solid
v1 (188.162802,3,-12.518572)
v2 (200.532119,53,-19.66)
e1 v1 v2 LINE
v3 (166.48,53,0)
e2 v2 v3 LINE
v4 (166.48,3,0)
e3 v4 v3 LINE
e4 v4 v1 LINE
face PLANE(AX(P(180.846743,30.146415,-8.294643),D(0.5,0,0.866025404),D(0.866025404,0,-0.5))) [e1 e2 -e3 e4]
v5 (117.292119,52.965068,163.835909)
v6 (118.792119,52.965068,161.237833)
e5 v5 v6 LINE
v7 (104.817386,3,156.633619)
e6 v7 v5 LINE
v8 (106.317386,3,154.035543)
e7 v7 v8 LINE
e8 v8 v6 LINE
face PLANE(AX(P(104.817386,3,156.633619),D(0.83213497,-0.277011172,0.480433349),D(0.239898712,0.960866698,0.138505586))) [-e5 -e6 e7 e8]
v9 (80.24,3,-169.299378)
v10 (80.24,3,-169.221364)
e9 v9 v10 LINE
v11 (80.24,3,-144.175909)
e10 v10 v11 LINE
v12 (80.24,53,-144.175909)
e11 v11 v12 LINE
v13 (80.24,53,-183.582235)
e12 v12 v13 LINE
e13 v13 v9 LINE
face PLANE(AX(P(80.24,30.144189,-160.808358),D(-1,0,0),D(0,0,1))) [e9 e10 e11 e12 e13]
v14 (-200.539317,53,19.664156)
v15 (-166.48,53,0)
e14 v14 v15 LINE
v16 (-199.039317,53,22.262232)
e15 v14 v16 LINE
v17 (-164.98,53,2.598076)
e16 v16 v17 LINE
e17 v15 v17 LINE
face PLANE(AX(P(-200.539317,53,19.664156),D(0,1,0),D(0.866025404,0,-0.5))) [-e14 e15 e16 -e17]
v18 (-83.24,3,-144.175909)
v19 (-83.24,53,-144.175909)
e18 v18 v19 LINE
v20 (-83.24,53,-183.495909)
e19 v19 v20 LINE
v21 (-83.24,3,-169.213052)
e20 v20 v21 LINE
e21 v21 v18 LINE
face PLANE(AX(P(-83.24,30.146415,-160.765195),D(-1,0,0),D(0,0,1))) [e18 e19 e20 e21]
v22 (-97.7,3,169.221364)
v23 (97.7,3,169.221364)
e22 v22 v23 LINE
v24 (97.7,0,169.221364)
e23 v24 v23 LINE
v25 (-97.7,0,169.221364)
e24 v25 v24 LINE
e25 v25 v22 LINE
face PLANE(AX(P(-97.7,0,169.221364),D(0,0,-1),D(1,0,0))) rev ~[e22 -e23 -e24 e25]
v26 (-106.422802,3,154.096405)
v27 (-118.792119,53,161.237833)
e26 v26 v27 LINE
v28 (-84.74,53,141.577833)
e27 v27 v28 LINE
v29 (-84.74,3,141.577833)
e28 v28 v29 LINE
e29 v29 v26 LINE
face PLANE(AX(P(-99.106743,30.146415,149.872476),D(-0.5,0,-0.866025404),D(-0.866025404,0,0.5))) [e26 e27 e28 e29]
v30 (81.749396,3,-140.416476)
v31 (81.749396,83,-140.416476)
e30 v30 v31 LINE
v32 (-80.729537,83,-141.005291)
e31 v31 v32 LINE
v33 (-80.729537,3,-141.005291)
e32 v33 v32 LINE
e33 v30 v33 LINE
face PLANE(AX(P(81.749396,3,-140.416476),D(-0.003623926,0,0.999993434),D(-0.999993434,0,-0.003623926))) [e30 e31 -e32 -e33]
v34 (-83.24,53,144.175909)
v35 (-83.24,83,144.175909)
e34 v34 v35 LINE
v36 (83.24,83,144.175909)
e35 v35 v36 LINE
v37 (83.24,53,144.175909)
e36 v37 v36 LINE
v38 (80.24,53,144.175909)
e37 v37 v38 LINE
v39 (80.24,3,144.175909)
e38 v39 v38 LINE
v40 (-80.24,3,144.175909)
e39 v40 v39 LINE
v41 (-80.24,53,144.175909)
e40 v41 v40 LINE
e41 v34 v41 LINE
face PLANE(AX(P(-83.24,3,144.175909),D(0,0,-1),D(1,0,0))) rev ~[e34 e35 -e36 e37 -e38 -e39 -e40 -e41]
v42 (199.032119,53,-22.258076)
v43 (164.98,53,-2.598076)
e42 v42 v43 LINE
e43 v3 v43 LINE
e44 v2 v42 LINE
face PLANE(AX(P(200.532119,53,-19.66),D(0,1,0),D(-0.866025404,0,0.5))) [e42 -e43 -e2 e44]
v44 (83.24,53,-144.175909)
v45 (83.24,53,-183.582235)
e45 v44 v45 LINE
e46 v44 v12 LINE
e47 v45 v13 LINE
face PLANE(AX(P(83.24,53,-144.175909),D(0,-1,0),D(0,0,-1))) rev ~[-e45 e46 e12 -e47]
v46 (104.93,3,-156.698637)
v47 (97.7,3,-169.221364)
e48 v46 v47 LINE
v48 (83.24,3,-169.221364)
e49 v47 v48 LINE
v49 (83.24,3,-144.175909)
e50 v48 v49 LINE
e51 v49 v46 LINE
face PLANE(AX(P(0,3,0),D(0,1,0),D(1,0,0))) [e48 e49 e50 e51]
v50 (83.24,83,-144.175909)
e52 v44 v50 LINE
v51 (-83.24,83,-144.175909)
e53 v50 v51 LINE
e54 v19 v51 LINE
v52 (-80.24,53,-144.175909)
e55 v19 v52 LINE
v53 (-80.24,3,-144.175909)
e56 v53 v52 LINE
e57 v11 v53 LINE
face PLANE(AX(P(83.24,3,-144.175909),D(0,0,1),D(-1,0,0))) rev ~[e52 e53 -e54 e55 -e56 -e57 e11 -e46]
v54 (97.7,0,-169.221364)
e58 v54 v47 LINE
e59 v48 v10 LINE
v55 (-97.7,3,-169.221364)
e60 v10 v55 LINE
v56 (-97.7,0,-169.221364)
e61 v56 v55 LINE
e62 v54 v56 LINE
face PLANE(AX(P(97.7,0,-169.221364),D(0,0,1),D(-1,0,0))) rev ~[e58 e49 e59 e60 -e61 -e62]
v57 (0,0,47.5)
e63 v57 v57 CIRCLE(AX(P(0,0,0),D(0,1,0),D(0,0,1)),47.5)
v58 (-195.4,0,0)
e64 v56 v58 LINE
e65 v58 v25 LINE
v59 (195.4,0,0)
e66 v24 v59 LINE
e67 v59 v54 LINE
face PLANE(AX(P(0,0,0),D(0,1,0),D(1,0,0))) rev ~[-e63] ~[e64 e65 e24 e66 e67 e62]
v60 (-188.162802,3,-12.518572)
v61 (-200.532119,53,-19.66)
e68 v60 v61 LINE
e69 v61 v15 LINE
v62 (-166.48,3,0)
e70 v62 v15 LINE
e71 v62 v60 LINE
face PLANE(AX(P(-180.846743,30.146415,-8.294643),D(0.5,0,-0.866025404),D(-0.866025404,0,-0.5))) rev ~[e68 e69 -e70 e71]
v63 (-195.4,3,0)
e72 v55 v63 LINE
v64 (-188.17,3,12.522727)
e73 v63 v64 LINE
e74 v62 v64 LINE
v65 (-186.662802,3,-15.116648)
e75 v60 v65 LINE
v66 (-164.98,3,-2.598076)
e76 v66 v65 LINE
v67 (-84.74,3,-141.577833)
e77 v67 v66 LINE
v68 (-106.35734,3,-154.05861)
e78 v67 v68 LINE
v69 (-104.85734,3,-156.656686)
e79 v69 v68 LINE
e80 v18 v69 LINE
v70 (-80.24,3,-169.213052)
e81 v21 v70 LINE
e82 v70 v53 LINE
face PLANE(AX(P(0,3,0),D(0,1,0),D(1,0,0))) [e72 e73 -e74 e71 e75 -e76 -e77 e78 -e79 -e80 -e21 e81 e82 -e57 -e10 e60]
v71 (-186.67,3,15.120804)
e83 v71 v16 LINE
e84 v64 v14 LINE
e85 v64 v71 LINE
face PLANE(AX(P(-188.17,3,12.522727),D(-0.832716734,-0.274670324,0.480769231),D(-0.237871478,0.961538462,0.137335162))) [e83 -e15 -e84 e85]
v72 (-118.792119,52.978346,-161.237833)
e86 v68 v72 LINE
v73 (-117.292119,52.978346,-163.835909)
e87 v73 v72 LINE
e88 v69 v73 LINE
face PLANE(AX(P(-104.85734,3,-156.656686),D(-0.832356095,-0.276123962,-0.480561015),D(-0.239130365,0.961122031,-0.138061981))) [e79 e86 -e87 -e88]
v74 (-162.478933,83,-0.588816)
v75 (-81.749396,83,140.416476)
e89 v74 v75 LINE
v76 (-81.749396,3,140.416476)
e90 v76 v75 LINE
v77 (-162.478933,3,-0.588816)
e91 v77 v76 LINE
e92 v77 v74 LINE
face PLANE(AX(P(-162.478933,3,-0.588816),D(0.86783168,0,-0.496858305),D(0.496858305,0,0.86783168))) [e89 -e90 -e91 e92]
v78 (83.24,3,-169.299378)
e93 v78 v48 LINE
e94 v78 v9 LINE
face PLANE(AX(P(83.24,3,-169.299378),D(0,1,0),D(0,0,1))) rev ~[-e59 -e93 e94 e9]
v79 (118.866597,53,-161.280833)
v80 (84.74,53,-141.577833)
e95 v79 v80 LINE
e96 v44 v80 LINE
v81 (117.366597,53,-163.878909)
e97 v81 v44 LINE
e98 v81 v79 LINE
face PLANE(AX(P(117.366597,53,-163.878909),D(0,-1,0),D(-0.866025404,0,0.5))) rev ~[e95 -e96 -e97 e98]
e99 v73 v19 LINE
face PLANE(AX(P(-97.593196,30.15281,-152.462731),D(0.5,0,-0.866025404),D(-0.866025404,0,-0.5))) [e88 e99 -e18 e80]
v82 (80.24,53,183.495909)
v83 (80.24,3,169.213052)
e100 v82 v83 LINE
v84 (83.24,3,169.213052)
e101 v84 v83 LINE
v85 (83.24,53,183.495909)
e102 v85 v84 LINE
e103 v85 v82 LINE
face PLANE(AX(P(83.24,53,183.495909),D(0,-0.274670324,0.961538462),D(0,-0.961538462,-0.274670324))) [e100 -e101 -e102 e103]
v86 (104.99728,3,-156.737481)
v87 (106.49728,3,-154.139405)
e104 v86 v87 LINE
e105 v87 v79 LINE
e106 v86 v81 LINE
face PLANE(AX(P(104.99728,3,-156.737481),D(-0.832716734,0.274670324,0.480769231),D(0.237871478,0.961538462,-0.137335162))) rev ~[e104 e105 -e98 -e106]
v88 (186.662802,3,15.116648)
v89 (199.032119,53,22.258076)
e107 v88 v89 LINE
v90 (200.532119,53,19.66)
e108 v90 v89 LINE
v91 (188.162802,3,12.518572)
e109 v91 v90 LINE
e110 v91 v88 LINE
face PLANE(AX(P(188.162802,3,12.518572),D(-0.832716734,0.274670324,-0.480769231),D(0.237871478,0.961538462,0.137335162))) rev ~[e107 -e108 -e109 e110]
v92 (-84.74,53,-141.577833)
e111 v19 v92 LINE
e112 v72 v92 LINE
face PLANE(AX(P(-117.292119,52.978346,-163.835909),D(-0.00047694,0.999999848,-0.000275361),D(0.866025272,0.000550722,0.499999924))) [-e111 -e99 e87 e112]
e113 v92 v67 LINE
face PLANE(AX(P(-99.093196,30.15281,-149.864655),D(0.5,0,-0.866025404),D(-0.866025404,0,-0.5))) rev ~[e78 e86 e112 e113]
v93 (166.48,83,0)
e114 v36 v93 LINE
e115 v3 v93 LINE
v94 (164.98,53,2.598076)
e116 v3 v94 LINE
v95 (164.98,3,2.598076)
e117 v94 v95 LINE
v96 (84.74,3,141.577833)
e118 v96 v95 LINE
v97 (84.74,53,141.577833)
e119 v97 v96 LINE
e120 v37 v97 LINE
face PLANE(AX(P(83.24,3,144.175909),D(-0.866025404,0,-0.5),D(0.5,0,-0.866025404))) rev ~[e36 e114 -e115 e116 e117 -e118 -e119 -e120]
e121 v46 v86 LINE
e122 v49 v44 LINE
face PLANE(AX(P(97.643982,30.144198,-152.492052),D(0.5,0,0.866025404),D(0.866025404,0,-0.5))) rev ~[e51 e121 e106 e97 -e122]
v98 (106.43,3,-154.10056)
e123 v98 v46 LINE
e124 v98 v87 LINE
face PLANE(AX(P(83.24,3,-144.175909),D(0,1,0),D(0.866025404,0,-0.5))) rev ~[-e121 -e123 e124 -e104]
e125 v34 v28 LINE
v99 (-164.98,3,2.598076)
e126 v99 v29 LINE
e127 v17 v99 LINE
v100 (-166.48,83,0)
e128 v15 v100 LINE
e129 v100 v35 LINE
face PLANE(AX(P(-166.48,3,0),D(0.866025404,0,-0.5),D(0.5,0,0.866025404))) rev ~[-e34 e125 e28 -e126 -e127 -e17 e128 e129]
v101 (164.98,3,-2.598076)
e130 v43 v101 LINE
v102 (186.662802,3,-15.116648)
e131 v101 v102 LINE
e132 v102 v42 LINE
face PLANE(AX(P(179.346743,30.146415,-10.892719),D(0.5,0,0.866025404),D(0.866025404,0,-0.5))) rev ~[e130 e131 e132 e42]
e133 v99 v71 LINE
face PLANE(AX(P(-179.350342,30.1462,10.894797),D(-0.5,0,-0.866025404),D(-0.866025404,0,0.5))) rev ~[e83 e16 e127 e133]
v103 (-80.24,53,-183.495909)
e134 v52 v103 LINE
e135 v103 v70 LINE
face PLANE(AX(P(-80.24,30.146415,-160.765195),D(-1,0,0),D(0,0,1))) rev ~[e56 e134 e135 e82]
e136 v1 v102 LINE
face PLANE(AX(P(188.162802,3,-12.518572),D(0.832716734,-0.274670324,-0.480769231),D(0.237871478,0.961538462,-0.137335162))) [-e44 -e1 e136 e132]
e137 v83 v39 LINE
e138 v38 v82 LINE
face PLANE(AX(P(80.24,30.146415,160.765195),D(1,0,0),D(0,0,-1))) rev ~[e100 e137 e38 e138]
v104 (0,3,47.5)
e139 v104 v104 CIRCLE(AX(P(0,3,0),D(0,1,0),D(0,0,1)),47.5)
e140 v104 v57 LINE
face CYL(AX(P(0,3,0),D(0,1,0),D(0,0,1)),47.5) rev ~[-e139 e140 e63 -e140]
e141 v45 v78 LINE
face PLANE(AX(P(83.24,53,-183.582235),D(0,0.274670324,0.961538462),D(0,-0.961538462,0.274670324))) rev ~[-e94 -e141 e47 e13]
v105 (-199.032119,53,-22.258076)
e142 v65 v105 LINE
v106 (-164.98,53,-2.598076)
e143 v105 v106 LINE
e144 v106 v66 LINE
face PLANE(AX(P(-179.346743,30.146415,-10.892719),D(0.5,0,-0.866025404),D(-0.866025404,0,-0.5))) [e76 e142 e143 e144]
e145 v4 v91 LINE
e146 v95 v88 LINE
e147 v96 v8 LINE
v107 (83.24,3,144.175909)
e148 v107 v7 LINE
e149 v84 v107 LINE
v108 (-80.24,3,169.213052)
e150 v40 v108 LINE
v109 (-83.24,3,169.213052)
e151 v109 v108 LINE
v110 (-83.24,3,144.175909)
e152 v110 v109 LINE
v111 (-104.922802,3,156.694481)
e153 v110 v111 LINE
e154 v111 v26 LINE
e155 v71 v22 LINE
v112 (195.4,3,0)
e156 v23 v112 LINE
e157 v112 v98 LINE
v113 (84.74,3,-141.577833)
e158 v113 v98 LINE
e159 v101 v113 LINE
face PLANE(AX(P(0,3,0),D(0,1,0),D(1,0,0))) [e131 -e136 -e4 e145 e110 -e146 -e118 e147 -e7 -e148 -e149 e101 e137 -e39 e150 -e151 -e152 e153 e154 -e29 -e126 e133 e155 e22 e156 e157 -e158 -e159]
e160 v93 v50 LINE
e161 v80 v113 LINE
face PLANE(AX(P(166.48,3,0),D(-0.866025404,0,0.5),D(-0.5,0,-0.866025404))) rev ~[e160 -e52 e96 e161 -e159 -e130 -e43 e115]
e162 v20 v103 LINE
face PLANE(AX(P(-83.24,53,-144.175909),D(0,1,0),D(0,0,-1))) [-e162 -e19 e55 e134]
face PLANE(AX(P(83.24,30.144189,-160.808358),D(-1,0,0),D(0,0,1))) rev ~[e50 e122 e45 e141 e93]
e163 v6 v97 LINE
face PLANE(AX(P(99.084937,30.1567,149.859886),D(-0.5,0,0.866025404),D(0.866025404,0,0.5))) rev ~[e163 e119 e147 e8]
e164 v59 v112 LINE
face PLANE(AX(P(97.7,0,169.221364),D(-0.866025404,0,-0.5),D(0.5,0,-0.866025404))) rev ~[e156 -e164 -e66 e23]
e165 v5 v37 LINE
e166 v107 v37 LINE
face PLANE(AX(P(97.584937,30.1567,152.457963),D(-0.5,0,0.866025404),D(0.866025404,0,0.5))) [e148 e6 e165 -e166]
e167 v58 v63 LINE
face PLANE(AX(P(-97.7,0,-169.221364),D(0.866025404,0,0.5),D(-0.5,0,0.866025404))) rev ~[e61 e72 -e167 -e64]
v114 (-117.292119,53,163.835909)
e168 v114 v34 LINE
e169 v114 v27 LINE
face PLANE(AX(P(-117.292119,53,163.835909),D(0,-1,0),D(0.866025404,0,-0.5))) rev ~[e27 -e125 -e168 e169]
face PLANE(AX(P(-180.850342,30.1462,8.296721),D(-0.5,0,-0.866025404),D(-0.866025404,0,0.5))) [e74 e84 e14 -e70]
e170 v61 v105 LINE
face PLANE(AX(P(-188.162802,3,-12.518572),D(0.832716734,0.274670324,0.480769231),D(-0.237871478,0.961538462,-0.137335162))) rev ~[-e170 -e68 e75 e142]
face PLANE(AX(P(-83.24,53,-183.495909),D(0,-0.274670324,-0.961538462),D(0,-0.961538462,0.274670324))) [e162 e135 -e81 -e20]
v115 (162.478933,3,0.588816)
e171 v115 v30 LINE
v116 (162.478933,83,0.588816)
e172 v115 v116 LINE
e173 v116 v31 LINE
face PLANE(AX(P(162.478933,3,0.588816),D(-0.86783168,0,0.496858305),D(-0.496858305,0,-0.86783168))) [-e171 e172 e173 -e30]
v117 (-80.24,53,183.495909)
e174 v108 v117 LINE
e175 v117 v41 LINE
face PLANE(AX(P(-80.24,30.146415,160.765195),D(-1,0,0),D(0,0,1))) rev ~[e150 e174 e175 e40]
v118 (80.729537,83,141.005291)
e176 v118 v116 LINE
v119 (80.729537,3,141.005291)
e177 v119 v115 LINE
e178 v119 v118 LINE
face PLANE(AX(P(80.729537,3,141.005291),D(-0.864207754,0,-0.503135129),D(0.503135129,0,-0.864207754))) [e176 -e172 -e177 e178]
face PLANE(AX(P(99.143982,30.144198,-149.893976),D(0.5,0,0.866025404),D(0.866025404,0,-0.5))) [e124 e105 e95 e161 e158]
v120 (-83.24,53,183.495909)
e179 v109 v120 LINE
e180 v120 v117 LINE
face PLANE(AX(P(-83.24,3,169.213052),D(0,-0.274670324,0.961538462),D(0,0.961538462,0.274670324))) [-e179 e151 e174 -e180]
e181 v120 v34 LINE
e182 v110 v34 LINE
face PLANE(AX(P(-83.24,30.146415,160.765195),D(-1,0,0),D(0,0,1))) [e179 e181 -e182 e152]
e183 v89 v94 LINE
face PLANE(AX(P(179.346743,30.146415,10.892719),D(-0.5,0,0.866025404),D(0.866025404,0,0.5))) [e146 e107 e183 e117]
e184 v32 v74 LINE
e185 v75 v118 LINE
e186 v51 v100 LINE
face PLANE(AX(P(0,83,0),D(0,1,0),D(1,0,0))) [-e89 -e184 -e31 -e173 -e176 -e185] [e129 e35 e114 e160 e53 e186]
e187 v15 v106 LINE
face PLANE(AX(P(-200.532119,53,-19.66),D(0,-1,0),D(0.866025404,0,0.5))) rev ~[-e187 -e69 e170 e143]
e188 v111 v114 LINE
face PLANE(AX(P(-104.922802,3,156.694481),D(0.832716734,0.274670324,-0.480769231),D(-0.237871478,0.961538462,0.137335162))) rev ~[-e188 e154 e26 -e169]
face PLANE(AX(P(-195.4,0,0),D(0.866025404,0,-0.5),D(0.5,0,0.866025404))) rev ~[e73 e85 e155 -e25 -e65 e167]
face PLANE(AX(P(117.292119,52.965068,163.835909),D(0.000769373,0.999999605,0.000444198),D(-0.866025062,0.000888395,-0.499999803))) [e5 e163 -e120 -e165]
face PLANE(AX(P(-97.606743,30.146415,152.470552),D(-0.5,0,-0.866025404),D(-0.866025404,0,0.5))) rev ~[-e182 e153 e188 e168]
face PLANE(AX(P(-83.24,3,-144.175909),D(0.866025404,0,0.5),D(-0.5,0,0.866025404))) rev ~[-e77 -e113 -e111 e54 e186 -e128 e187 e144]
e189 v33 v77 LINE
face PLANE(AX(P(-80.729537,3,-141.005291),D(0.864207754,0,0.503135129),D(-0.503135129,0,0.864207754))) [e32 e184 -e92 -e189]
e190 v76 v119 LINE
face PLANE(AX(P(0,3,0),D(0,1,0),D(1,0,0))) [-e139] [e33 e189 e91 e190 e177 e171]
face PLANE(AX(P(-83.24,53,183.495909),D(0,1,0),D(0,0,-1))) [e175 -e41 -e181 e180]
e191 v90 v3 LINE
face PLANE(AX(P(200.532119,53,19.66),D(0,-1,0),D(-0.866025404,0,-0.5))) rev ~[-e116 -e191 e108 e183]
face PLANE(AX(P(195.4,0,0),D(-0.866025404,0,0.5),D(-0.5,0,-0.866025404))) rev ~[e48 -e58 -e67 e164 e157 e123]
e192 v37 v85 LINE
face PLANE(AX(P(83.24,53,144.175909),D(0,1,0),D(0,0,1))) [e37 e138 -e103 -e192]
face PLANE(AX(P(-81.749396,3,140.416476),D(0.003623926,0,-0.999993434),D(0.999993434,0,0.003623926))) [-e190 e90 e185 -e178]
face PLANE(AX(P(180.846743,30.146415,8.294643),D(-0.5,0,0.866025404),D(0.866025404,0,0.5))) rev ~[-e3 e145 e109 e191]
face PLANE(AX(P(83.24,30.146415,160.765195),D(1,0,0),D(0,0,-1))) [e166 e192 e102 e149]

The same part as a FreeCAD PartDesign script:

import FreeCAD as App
import Part
import Sketcher
from FreeCAD import Vector
Q = App.Units.Quantity

doc = App.newDocument("Part")
body = doc.addObject("PartDesign::Body", "Body")

# Sketch on XZ plane
sketch1 = body.newObject("Sketcher::SketchObject", "Sketch")
sketch1.AttachmentSupport = (doc.getObject("XZ_Plane"), [""])
sketch1.MapMode = "FlatFace"
sketch1.addGeometry([
    Part.LineSegment(Vector(195, 0, 0), Vector(98, -169, 0)),  # 0
    Part.LineSegment(Vector(98, -169, 0), Vector(-98, -169, 0)),  # 1
    Part.LineSegment(Vector(-98, -169, 0), Vector(-195, 0, 0)),  # 2
    Part.LineSegment(Vector(-195, 0, 0), Vector(-98, 169, 0)),  # 3
    Part.LineSegment(Vector(-98, 169, 0), Vector(98, 169, 0)),  # 4
    Part.LineSegment(Vector(98, 169, 0), Vector(195, 0, 0)),  # 5
], False)
sketch1.addConstraint([
    Sketcher.Constraint("Coincident", 0, 2, 1, 1),
    Sketcher.Constraint("Coincident", 1, 2, 2, 1),
    Sketcher.Constraint("Coincident", 2, 2, 3, 1),
    Sketcher.Constraint("Coincident", 3, 2, 4, 1),
    Sketcher.Constraint("Coincident", 4, 2, 5, 1),
    Sketcher.Constraint("Coincident", 5, 2, 0, 1),
    Sketcher.Constraint("Horizontal", 1),
    Sketcher.Constraint("Horizontal", 4),
    Sketcher.Constraint("Symmetric", 0, 2, 3, 2, -1, 1),
    Sketcher.Constraint("Symmetric", 2, 2, 5, 2, -1, 1),
    Sketcher.Constraint("PointOnObject", 2, 2, -1),
    Sketcher.Constraint("Parallel", 2, 5),
    Sketcher.Constraint("Vertical", 1, 2, 3, 2),
    Sketcher.Constraint("Angle", 0, Q("-120 deg")),
    Sketcher.Constraint("DistanceX", 1, 2, 1, 1, Q("195.4 mm")),
    Sketcher.Constraint("Distance", 0, Q("195.4 mm")),
])
pad1 = body.newObject("PartDesign::Pad", "Pad")
pad1.Profile = sketch1
pad1.Length = 3
pad1.Reversed = True

# Sketch on XZ plane
sketch2 = body.newObject("Sketcher::SketchObject", "Sketch001")
sketch2.AttachmentSupport = (doc.getObject("XZ_Plane"), [""])
sketch2.MapMode = "FlatFace"
sketch2.AttachmentOffset = App.Placement(Vector(0, 0, -3), App.Rotation())
sketch2.addGeometry(Part.Circle(Vector(0, 0, 0), Vector(0, 0, 1), 48), False)
sketch2.addConstraint([
    Sketcher.Constraint("Coincident", 0, 3, -1, 1),
    Sketcher.Constraint("Diameter", 0, Q("95 mm")),
])
pocket1 = body.newObject("PartDesign::Pocket", "Pocket")
pocket1.Profile = sketch2
pocket1.Length = 3
pocket1.Reversed = True

# Sketch on XZ plane
sketch3 = body.newObject("Sketcher::SketchObject", "Sketch002")
sketch3.AttachmentSupport = (doc.getObject("XZ_Plane"), [""])
sketch3.MapMode = "FlatFace"
sketch3.AttachmentOffset = App.Placement(Vector(0, 0, -3), App.Rotation())
sketch3.addGeometry([
    Part.LineSegment(Vector(83, -144, 0), Vector(-83, -144, 0)),  # 0
    Part.LineSegment(Vector(-83, -144, 0), Vector(-166, 0, 0)),  # 1
    Part.LineSegment(Vector(-166, 0, 0), Vector(-83, 144, 0)),  # 2
    Part.LineSegment(Vector(-83, 144, 0), Vector(83, 144, 0)),  # 3
    Part.LineSegment(Vector(83, 144, 0), Vector(166, 0, 0)),  # 4
    Part.LineSegment(Vector(166, 0, 0), Vector(83, -144, 0)),  # 5
    Part.LineSegment(Vector(-162, -1, 0), Vector(-81, -141, 0)),  # 6
    Part.LineSegment(Vector(-81, -141, 0), Vector(82, -140, 0)),  # 7
    Part.LineSegment(Vector(82, -140, 0), Vector(162, 1, 0)),  # 8
    Part.LineSegment(Vector(162, 1, 0), Vector(81, 141, 0)),  # 9
    Part.LineSegment(Vector(81, 141, 0), Vector(-82, 140, 0)),  # 10
    Part.LineSegment(Vector(-82, 140, 0), Vector(-162, -1, 0)),  # 11
], False)
sketch3.addConstraint([
    Sketcher.Constraint("Coincident", 0, 2, 1, 1),
    Sketcher.Constraint("Coincident", 1, 2, 2, 1),
    Sketcher.Constraint("Coincident", 2, 2, 3, 1),
    Sketcher.Constraint("Coincident", 3, 2, 4, 1),
    Sketcher.Constraint("Coincident", 4, 2, 5, 1),
    Sketcher.Constraint("Coincident", 5, 2, 0, 1),
    Sketcher.Constraint("Coincident", 6, 2, 7, 1),
    Sketcher.Constraint("Coincident", 7, 2, 8, 1),
    Sketcher.Constraint("Coincident", 8, 2, 9, 1),
    Sketcher.Constraint("Coincident", 9, 2, 10, 1),
    Sketcher.Constraint("Coincident", 10, 2, 11, 1),
    Sketcher.Constraint("Coincident", 11, 2, 6, 1),
    Sketcher.Constraint("Horizontal", 0),
    Sketcher.Constraint("Horizontal", 3),
    Sketcher.Constraint("Symmetric", 0, 2, 3, 2, -1, 1),
    Sketcher.Constraint("Symmetric", 1, 2, 4, 2, -1, 1),
    Sketcher.Constraint("Symmetric", 6, 2, 9, 2, -1, 1),
    Sketcher.Constraint("Symmetric", 7, 2, 10, 2, -1, 1),
    Sketcher.Constraint("Symmetric", 8, 2, 11, 2, -1, 1),
    Sketcher.Constraint("PointOnObject", 1, 2, -1),
    Sketcher.Constraint("Parallel", 2, 5),
    Sketcher.Constraint("Vertical", 0, 2, 2, 2),
    Sketcher.Constraint("Equal", 6, 7),
    Sketcher.Constraint("Equal", 7, 8),
    Sketcher.Constraint("Angle", 1, Q("120 deg")),
    Sketcher.Constraint("DistanceX", 0, 2, 0, 1, Q("166.48 mm")),
    Sketcher.Constraint("Distance", 1, Q("166.48 mm")),
    Sketcher.Constraint("Distance", 6, Q("162.48 mm")),
    Sketcher.Constraint("DistanceY", 6, 2, 2, 2, Q("285.181201 mm")),
    Sketcher.Constraint("DistanceY", 7, 2, 8, 2, Q("141.005291 mm")),
    Sketcher.Constraint("DistanceX", 9, 2, 7, 2, Q("1.019858 mm")),
])
pad2 = body.newObject("PartDesign::Pad", "Pad001")
pad2.Profile = sketch3
pad2.Length = 80
pad2.Reversed = True

# Sketch on YZ plane
sketch4 = body.newObject("Sketcher::SketchObject", "Sketch003")
sketch4.AttachmentSupport = (doc.getObject("YZ_Plane"), [""])
sketch4.MapMode = "FlatFace"
sketch4.AttachmentOffset = App.Placement(Vector(0, 0, 83.24), App.Rotation())
sketch4.addGeometry([
    Part.LineSegment(Vector(53, -144, 0), Vector(3, -144, 0)),
    Part.LineSegment(Vector(3, -144, 0), Vector(3, -169, 0)),
    Part.LineSegment(Vector(3, -169, 0), Vector(53, -184, 0)),
    Part.LineSegment(Vector(53, -184, 0), Vector(53, -144, 0)),
], False)
sketch4.addConstraint([
    Sketcher.Constraint("Coincident", 0, 2, 1, 1),
    Sketcher.Constraint("Coincident", 1, 2, 2, 1),
    Sketcher.Constraint("Coincident", 2, 2, 3, 1),
    Sketcher.Constraint("Coincident", 3, 2, 0, 1),
    Sketcher.Constraint("Horizontal", 0),
    Sketcher.Constraint("Vertical", 1),
    Sketcher.Constraint("Vertical", 3),
    Sketcher.Constraint("DistanceX", 0, 2, 0, 1, Q("50 mm")),
    Sketcher.Constraint("Distance", 2, Q("52 mm")),
    Sketcher.Constraint("DistanceX", -1, 1, 0, 2, Q("3 mm")),
    Sketcher.Constraint("DistanceY", 1, 2, 1, 1, Q("25.123469 mm")),
    Sketcher.Constraint("DistanceY", 0, 2, -1, 1, Q("144.175909 mm")),
])
pad3 = body.newObject("PartDesign::Pad", "Pad002")
pad3.Profile = sketch4
pad3.Length = 3
pad3.Reversed = True

# Sketch on an angled plane
sketch5 = body.newObject("Sketcher::SketchObject", "Sketch004")
sketch5.Placement = App.Placement(Vector(-41.62, 0, -72.087955), App.Rotation(Vector(-0.866025404, 0, 0.5), Vector(0, 1, 0), Vector(-0.5, 0, -0.866025404), "ZXY"))
sketch5.addGeometry([
    Part.LineSegment(Vector(-144, 3, 0), Vector(-144, 53, 0)),
    Part.LineSegment(Vector(-144, 53, 0), Vector(-184, 53, 0)),
    Part.LineSegment(Vector(-184, 53, 0), Vector(-169, 3, 0)),
    Part.LineSegment(Vector(-169, 3, 0), Vector(-144, 3, 0)),
], False)
sketch5.addConstraint([
    Sketcher.Constraint("Coincident", 0, 2, 1, 1),
    Sketcher.Constraint("Coincident", 1, 2, 2, 1),
    Sketcher.Constraint("Coincident", 2, 2, 3, 1),
    Sketcher.Constraint("Coincident", 3, 2, 0, 1),
    Sketcher.Constraint("Vertical", 0),
    Sketcher.Constraint("Horizontal", 1),
    Sketcher.Constraint("Horizontal", 3),
    Sketcher.Constraint("DistanceY", 0, 1, 0, 2, Q("50 mm")),
    Sketcher.Constraint("Distance", 2, Q("52 mm")),
    Sketcher.Constraint("DistanceY", -1, 1, 0, 2, Q("53 mm")),
    Sketcher.Constraint("DistanceX", 1, 2, 1, 1, Q("39.406 mm")),
    Sketcher.Constraint("DistanceX", 0, 2, -1, 1, Q("144.175909 mm")),
])
pad4 = body.newObject("PartDesign::Pad", "Pad003")
pad4.Profile = sketch5
pad4.Length = 3
pad4.Reversed = True

# Sketch on an angled plane
sketch6 = body.newObject("Sketcher::SketchObject", "Sketch005")
sketch6.Placement = App.Placement(Vector(-41.62, 0, -72.087955), App.Rotation(Vector(-0.866025404, 0, 0.5), Vector(0, 1, 0), Vector(-0.5, 0, -0.866025404), "ZXY"))
sketch6.addGeometry([
    Part.LineSegment(Vector(144, 3, 0), Vector(169, 3, 0)),
    Part.LineSegment(Vector(169, 3, 0), Vector(184, 53, 0)),
    Part.LineSegment(Vector(184, 53, 0), Vector(144, 53, 0)),
    Part.LineSegment(Vector(144, 53, 0), Vector(144, 3, 0)),
], False)
sketch6.addConstraint([
    Sketcher.Constraint("Coincident", 0, 2, 1, 1),
    Sketcher.Constraint("Coincident", 1, 2, 2, 1),
    Sketcher.Constraint("Coincident", 2, 2, 3, 1),
    Sketcher.Constraint("Coincident", 3, 2, 0, 1),
    Sketcher.Constraint("Horizontal", 0),
    Sketcher.Constraint("Horizontal", 2),
    Sketcher.Constraint("Vertical", 3),
    Sketcher.Constraint("DistanceY", 3, 2, 3, 1, Q("50 mm")),
    Sketcher.Constraint("Distance", 1, Q("52 mm")),
    Sketcher.Constraint("DistanceY", -1, 1, 0, 2, Q("3 mm")),
    Sketcher.Constraint("DistanceX", 2, 2, 2, 1, Q("39.328312 mm")),
    Sketcher.Constraint("DistanceX", -1, 1, 1, 2, Q("183.504221 mm")),
])
pad5 = body.newObject("PartDesign::Pad", "Pad004")
pad5.Profile = sketch6
pad5.Length = 3
pad5.Reversed = True

# Sketch on YZ plane
sketch7 = body.newObject("Sketcher::SketchObject", "Sketch006")
sketch7.AttachmentSupport = (doc.getObject("YZ_Plane"), [""])
sketch7.MapMode = "FlatFace"
sketch7.AttachmentOffset = App.Placement(Vector(0, 0, 83.24), App.Rotation())
sketch7.addGeometry([
    Part.LineSegment(Vector(3, 144, 0), Vector(53, 144, 0)),
    Part.LineSegment(Vector(53, 144, 0), Vector(53, 183, 0)),
    Part.LineSegment(Vector(53, 183, 0), Vector(3, 169, 0)),
    Part.LineSegment(Vector(3, 169, 0), Vector(3, 144, 0)),
], False)
sketch7.addConstraint([
    Sketcher.Constraint("Coincident", 0, 2, 1, 1),
    Sketcher.Constraint("Coincident", 1, 2, 2, 1),
    Sketcher.Constraint("Coincident", 2, 2, 3, 1),
    Sketcher.Constraint("Coincident", 3, 2, 0, 1),
    Sketcher.Constraint("Horizontal", 0),
    Sketcher.Constraint("Vertical", 1),
    Sketcher.Constraint("Vertical", 3),
    Sketcher.Constraint("DistanceX", 0, 1, 0, 2, Q("50 mm")),
    Sketcher.Constraint("Distance", 2, Q("52 mm")),
    Sketcher.Constraint("DistanceX", -1, 1, 0, 2, Q("53 mm")),
    Sketcher.Constraint("DistanceY", 1, 1, 1, 2, Q("39.32 mm")),
    Sketcher.Constraint("DistanceY", -1, 1, 0, 2, Q("144.175909 mm")),
])
pad6 = body.newObject("PartDesign::Pad", "Pad005")
pad6.Profile = sketch7
pad6.Length = 3
pad6.Reversed = True

# Sketch on YZ plane
sketch8 = body.newObject("Sketcher::SketchObject", "Sketch007")
sketch8.AttachmentSupport = (doc.getObject("YZ_Plane"), [""])
sketch8.MapMode = "FlatFace"
sketch8.AttachmentOffset = App.Placement(Vector(0, 0, -83.24), App.Rotation())
sketch8.addGeometry([
    Part.LineSegment(Vector(53, -144, 0), Vector(3, -144, 0)),
    Part.LineSegment(Vector(3, -144, 0), Vector(3, -169, 0)),
    Part.LineSegment(Vector(3, -169, 0), Vector(53, -183, 0)),
    Part.LineSegment(Vector(53, -183, 0), Vector(53, -144, 0)),
], False)
sketch8.addConstraint([
    Sketcher.Constraint("Coincident", 0, 2, 1, 1),
    Sketcher.Constraint("Coincident", 1, 2, 2, 1),
    Sketcher.Constraint("Coincident", 2, 2, 3, 1),
    Sketcher.Constraint("Coincident", 3, 2, 0, 1),
    Sketcher.Constraint("Horizontal", 0),
    Sketcher.Constraint("Vertical", 1),
    Sketcher.Constraint("Vertical", 3),
    Sketcher.Constraint("DistanceX", 0, 2, 0, 1, Q("50 mm")),
    Sketcher.Constraint("Distance", 2, Q("52 mm")),
    Sketcher.Constraint("DistanceX", -1, 1, 0, 2, Q("3 mm")),
    Sketcher.Constraint("DistanceY", 3, 1, 3, 2, Q("39.32 mm")),
    Sketcher.Constraint("DistanceY", 0, 2, -1, 1, Q("144.175909 mm")),
])
pad7 = body.newObject("PartDesign::Pad", "Pad006")
pad7.Profile = sketch8
pad7.Length = 3

# Sketch on YZ plane
sketch9 = body.newObject("Sketcher::SketchObject", "Sketch008")
sketch9.AttachmentSupport = (doc.getObject("YZ_Plane"), [""])
sketch9.MapMode = "FlatFace"
sketch9.AttachmentOffset = App.Placement(Vector(0, 0, -83.24), App.Rotation())
sketch9.addGeometry([
    Part.LineSegment(Vector(3, 144, 0), Vector(53, 144, 0)),
    Part.LineSegment(Vector(53, 144, 0), Vector(53, 183, 0)),
    Part.LineSegment(Vector(53, 183, 0), Vector(3, 169, 0)),
    Part.LineSegment(Vector(3, 169, 0), Vector(3, 144, 0)),
], False)
sketch9.addConstraint([
    Sketcher.Constraint("Coincident", 0, 2, 1, 1),
    Sketcher.Constraint("Coincident", 1, 2, 2, 1),
    Sketcher.Constraint("Coincident", 2, 2, 3, 1),
    Sketcher.Constraint("Coincident", 3, 2, 0, 1),
    Sketcher.Constraint("Horizontal", 0),
    Sketcher.Constraint("Vertical", 1),
    Sketcher.Constraint("Vertical", 3),
    Sketcher.Constraint("DistanceX", 0, 1, 0, 2, Q("50 mm")),
    Sketcher.Constraint("Distance", 2, Q("52 mm")),
    Sketcher.Constraint("DistanceX", -1, 1, 0, 2, Q("53 mm")),
    Sketcher.Constraint("DistanceY", 1, 1, 1, 2, Q("39.32 mm")),
    Sketcher.Constraint("DistanceY", -1, 1, 0, 2, Q("144.175909 mm")),
])
pad8 = body.newObject("PartDesign::Pad", "Pad007")
pad8.Profile = sketch9
pad8.Length = 3

# Sketch on an angled plane
sketch10 = body.newObject("Sketcher::SketchObject", "Sketch009")
sketch10.Placement = App.Placement(Vector(-41.62, 0, 72.087955), App.Rotation(Vector(-0.866025404, 0, -0.5), Vector(0, 1, 0), Vector(0.5, 0, -0.866025404), "ZXY"))
sketch10.addGeometry([
    Part.LineSegment(Vector(-144, 3, 0), Vector(-144, 53, 0)),
    Part.LineSegment(Vector(-144, 53, 0), Vector(-183, 53, 0)),
    Part.LineSegment(Vector(-183, 53, 0), Vector(-169, 3, 0)),
    Part.LineSegment(Vector(-169, 3, 0), Vector(-144, 3, 0)),
], False)
sketch10.addConstraint([
    Sketcher.Constraint("Coincident", 0, 2, 1, 1),
    Sketcher.Constraint("Coincident", 1, 2, 2, 1),
    Sketcher.Constraint("Coincident", 2, 2, 3, 1),
    Sketcher.Constraint("Coincident", 3, 2, 0, 1),
    Sketcher.Constraint("Vertical", 0),
    Sketcher.Constraint("Horizontal", 3),
    Sketcher.Constraint("DistanceY", 0, 1, 0, 2, Q("50 mm")),
    Sketcher.Constraint("Distance", 2, Q("52 mm")),
    Sketcher.Constraint("DistanceY", -1, 1, 0, 2, Q("53 mm")),
    Sketcher.Constraint("DistanceX", 1, 2, 0, 2, Q("39.32 mm")),
    Sketcher.Constraint("DistanceX", 3, 1, 3, 2, Q("24.915419 mm")),
    Sketcher.Constraint("DistanceX", 0, 2, -1, 1, Q("144.175909 mm")),
])
pad9 = body.newObject("PartDesign::Pad", "Pad008")
pad9.Profile = sketch10
pad9.Length = 3

# Sketch on an angled plane
sketch11 = body.newObject("Sketcher::SketchObject", "Sketch010")
sketch11.Placement = App.Placement(Vector(41.62, 0, -72.087955), App.Rotation(Vector(-0.866025404, 0, -0.5), Vector(0, 1, 0), Vector(0.5, 0, -0.866025404), "ZXY"))
sketch11.addGeometry([
    Part.LineSegment(Vector(-169, 3, 0), Vector(-144, 3, 0)),
    Part.LineSegment(Vector(-144, 3, 0), Vector(-144, 53, 0)),
    Part.LineSegment(Vector(-144, 53, 0), Vector(-183, 53, 0)),
    Part.LineSegment(Vector(-183, 53, 0), Vector(-169, 3, 0)),
], False)
sketch11.addConstraint([
    Sketcher.Constraint("Coincident", 0, 2, 1, 1),
    Sketcher.Constraint("Coincident", 1, 2, 2, 1),
    Sketcher.Constraint("Coincident", 2, 2, 3, 1),
    Sketcher.Constraint("Coincident", 3, 2, 0, 1),
    Sketcher.Constraint("Horizontal", 0),
    Sketcher.Constraint("Vertical", 1),
    Sketcher.Constraint("Horizontal", 2),
    Sketcher.Constraint("DistanceY", 1, 1, 1, 2, Q("50 mm")),
    Sketcher.Constraint("Distance", 3, Q("52 mm")),
    Sketcher.Constraint("DistanceY", -1, 1, 0, 2, Q("3 mm")),
    Sketcher.Constraint("DistanceX", 2, 2, 2, 1, Q("39.32 mm")),
    Sketcher.Constraint("DistanceX", 0, 2, -1, 1, Q("144.175909 mm")),
])
pad10 = body.newObject("PartDesign::Pad", "Pad009")
pad10.Profile = sketch11
pad10.Length = 3
pad10.Reversed = True

# Sketch on an angled plane
sketch12 = body.newObject("Sketcher::SketchObject", "Sketch011")
sketch12.Placement = App.Placement(Vector(-41.62, 0, 72.087955), App.Rotation(Vector(-0.866025404, 0, -0.5), Vector(0, 1, 0), Vector(0.5, 0, -0.866025404), "ZXY"))
sketch12.addGeometry([
    Part.LineSegment(Vector(144, 53, 0), Vector(144, 3, 0)),
    Part.LineSegment(Vector(144, 3, 0), Vector(169, 3, 0)),
    Part.LineSegment(Vector(169, 3, 0), Vector(183, 53, 0)),
    Part.LineSegment(Vector(183, 53, 0), Vector(144, 53, 0)),
], False)
sketch12.addConstraint([
    Sketcher.Constraint("Coincident", 0, 2, 1, 1),
    Sketcher.Constraint("Coincident", 1, 2, 2, 1),
    Sketcher.Constraint("Coincident", 2, 2, 3, 1),
    Sketcher.Constraint("Coincident", 3, 2, 0, 1),
    Sketcher.Constraint("Vertical", 0),
    Sketcher.Constraint("Horizontal", 1),
    Sketcher.Constraint("Horizontal", 3),
    Sketcher.Constraint("DistanceY", 0, 2, 0, 1, Q("50 mm")),
    Sketcher.Constraint("Distance", 2, Q("52 mm")),
    Sketcher.Constraint("DistanceY", -1, 1, 0, 2, Q("3 mm")),
    Sketcher.Constraint("DistanceX", 3, 2, 3, 1, Q("39.32 mm")),
    Sketcher.Constraint("DistanceX", -1, 1, 0, 2, Q("144.175909 mm")),
])
pad11 = body.newObject("PartDesign::Pad", "Pad010")
pad11.Profile = sketch12
pad11.Length = 3

# Sketch on an angled plane
sketch13 = body.newObject("Sketcher::SketchObject", "Sketch012")
sketch13.Placement = App.Placement(Vector(41.62, 0, -72.087955), App.Rotation(Vector(-0.866025404, 0, -0.5), Vector(0, 1, 0), Vector(0.5, 0, -0.866025404), "ZXY"))
sketch13.addGeometry([
    Part.LineSegment(Vector(144, 53, 0), Vector(144, 3, 0)),
    Part.LineSegment(Vector(144, 3, 0), Vector(169, 3, 0)),
    Part.LineSegment(Vector(169, 3, 0), Vector(183, 53, 0)),
    Part.LineSegment(Vector(183, 53, 0), Vector(144, 53, 0)),
], False)
sketch13.addConstraint([
    Sketcher.Constraint("Coincident", 0, 2, 1, 1),
    Sketcher.Constraint("Coincident", 1, 2, 2, 1),
    Sketcher.Constraint("Coincident", 2, 2, 3, 1),
    Sketcher.Constraint("Coincident", 3, 2, 0, 1),
    Sketcher.Constraint("Vertical", 0),
    Sketcher.Constraint("Horizontal", 1),
    Sketcher.Constraint("DistanceY", 0, 2, 0, 1, Q("50 mm")),
    Sketcher.Constraint("Distance", 2, Q("52 mm")),
    Sketcher.Constraint("DistanceY", -1, 1, 0, 2, Q("3 mm")),
    Sketcher.Constraint("DistanceX", 0, 2, 2, 2, Q("39.32 mm")),
    Sketcher.Constraint("DistanceX", 1, 1, 1, 2, Q("24.961554 mm")),
    Sketcher.Constraint("DistanceX", -1, 1, 0, 2, Q("144.175909 mm")),
])
pad12 = body.newObject("PartDesign::Pad", "Pad011")
pad12.Profile = sketch13
pad12.Length = 3
pad12.Reversed = True

# Sketch on an angled plane
sketch14 = body.newObject("Sketcher::SketchObject", "Sketch013")
sketch14.Placement = App.Placement(Vector(41.62, 0, 72.087955), App.Rotation(Vector(-0.866025404, 0, 0.5), Vector(0, 1, 0), Vector(-0.5, 0, -0.866025404), "ZXY"))
sketch14.addGeometry([
    Part.LineSegment(Vector(144, 53, 0), Vector(144, 3, 0)),
    Part.LineSegment(Vector(144, 3, 0), Vector(169, 3, 0)),
    Part.LineSegment(Vector(169, 3, 0), Vector(183, 53, 0)),
    Part.LineSegment(Vector(183, 53, 0), Vector(144, 53, 0)),
], False)
sketch14.addConstraint([
    Sketcher.Constraint("Coincident", 0, 2, 1, 1),
    Sketcher.Constraint("Coincident", 1, 2, 2, 1),
    Sketcher.Constraint("Coincident", 2, 2, 3, 1),
    Sketcher.Constraint("Coincident", 3, 2, 0, 1),
    Sketcher.Constraint("Vertical", 0),
    Sketcher.Constraint("Horizontal", 1),
    Sketcher.Constraint("Horizontal", 3),
    Sketcher.Constraint("DistanceY", 0, 2, 0, 1, Q("50 mm")),
    Sketcher.Constraint("Distance", 2, Q("52 mm")),
    Sketcher.Constraint("DistanceY", -1, 1, 0, 2, Q("3 mm")),
    Sketcher.Constraint("DistanceX", 3, 2, 3, 1, Q("39.32 mm")),
    Sketcher.Constraint("DistanceX", -1, 1, 0, 2, Q("144.175909 mm")),
])
pad13 = body.newObject("PartDesign::Pad", "Pad012")
pad13.Profile = sketch14
pad13.Length = 3

# Sketch on an angled plane
sketch15 = body.newObject("Sketcher::SketchObject", "Sketch014")
sketch15.Placement = App.Placement(Vector(41.62, 0, 72.087955), App.Rotation(Vector(-0.866025404, 0, 0.5), Vector(0, 1, 0), Vector(-0.5, 0, -0.866025404), "ZXY"))
sketch15.addGeometry([
    Part.LineSegment(Vector(-144, 3, 0), Vector(-144, 53, 0)),
    Part.LineSegment(Vector(-144, 53, 0), Vector(-183, 53, 0)),
    Part.LineSegment(Vector(-183, 53, 0), Vector(-169, 3, 0)),
    Part.LineSegment(Vector(-169, 3, 0), Vector(-144, 3, 0)),
], False)
sketch15.addConstraint([
    Sketcher.Constraint("Coincident", 0, 2, 1, 1),
    Sketcher.Constraint("Coincident", 1, 2, 2, 1),
    Sketcher.Constraint("Coincident", 2, 2, 3, 1),
    Sketcher.Constraint("Coincident", 3, 2, 0, 1),
    Sketcher.Constraint("Vertical", 0),
    Sketcher.Constraint("Horizontal", 1),
    Sketcher.Constraint("Horizontal", 3),
    Sketcher.Constraint("DistanceY", 0, 1, 0, 2, Q("50 mm")),
    Sketcher.Constraint("Distance", 2, Q("52 mm")),
    Sketcher.Constraint("DistanceY", -1, 1, 0, 2, Q("53 mm")),
    Sketcher.Constraint("DistanceX", 1, 2, 1, 1, Q("39.32 mm")),
    Sketcher.Constraint("DistanceX", 0, 2, -1, 1, Q("144.175909 mm")),
])
pad14 = body.newObject("PartDesign::Pad", "Pad013")
pad14.Profile = sketch15
pad14.Length = 3

doc.recompute()
